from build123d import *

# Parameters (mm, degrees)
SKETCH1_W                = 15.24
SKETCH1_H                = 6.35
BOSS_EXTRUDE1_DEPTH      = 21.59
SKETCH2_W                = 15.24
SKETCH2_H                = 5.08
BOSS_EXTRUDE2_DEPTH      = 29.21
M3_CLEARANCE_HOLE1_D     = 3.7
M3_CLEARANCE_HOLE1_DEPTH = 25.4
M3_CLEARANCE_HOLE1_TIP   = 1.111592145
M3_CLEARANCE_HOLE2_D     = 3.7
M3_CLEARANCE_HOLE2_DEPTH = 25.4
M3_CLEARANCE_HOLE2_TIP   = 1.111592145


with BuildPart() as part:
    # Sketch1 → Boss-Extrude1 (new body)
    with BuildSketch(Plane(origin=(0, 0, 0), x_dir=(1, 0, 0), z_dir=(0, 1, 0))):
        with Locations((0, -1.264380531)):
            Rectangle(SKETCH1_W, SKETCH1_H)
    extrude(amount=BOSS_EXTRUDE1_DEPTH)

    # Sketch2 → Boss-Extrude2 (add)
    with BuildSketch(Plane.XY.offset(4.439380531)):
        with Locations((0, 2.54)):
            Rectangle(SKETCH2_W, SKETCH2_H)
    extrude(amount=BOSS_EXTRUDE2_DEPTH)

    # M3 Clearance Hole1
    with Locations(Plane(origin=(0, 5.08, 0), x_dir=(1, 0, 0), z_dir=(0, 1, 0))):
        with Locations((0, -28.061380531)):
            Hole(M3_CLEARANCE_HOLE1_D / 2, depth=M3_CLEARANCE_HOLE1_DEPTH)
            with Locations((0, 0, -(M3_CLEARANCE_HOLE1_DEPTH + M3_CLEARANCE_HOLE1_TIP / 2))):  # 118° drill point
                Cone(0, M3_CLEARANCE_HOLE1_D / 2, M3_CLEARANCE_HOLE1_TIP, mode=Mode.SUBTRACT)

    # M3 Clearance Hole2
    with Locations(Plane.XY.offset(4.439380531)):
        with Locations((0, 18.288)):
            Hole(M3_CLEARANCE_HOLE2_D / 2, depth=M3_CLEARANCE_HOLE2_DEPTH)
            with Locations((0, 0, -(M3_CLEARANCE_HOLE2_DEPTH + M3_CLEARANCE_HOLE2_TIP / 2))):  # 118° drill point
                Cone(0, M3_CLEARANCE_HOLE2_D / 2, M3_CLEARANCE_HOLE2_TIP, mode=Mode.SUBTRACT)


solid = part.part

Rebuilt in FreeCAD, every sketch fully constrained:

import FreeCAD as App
import Part
import Sketcher

V = App.Vector
Q = App.Units.Quantity

doc = App.newDocument("Part")
body = doc.addObject("PartDesign::Body", "Body")

# Sketch on XZ plane
sketch1 = doc.addObject("Sketcher::SketchObject", "Sketch")
body.addObject(sketch1)
sketch1.AttachmentSupport = (doc.XZ_Plane, [""])
sketch1.MapMode = "FlatFace"
sketch1.addGeometry(Part.LineSegment(V(-8, -2, 0), V(-8, 4, 0)), False)
sketch1.addGeometry(Part.LineSegment(V(-8, 4, 0), V(8, 4, 0)), False)
sketch1.addGeometry(Part.LineSegment(V(8, 4, 0), V(8, -2, 0)), False)
sketch1.addGeometry(Part.LineSegment(V(8, -2, 0), V(-8, -2, 0)), False)
sketch1.addConstraint(Sketcher.Constraint("Coincident", 0, 2, 1, 1))
sketch1.addConstraint(Sketcher.Constraint("Coincident", 1, 2, 2, 1))
sketch1.addConstraint(Sketcher.Constraint("Coincident", 2, 2, 3, 1))
sketch1.addConstraint(Sketcher.Constraint("Coincident", 3, 2, 0, 1))
sketch1.addConstraint(Sketcher.Constraint("Vertical", 0))
sketch1.addConstraint(Sketcher.Constraint("Horizontal", 1))
sketch1.addConstraint(Sketcher.Constraint("Vertical", 2))
sketch1.addConstraint(Sketcher.Constraint("Horizontal", 3))
sketch1.addConstraint(Sketcher.Constraint("DistanceX", 1, 1, 1, 2, Q("0.6 in")))
sketch1.addConstraint(Sketcher.Constraint("DistanceY", 0, 1, 0, 2, Q("0.25 in")))
sketch1.addConstraint(Sketcher.Constraint("DistanceX", 0, 2, -1, 1, Q("0.3 in")))
sketch1.addConstraint(Sketcher.Constraint("DistanceY", -1, 1, 0, 2, Q("4.439381 mm")))
pad1 = doc.addObject("PartDesign::Pad", "Pad")
body.addObject(pad1)
pad1.Profile = sketch1
pad1.Length = Q("0.85 in")
pad1.Reversed = True

# Sketch on XY plane
sketch2 = doc.addObject("Sketcher::SketchObject", "Sketch001")
body.addObject(sketch2)
sketch2.AttachmentSupport = (doc.XY_Plane, [""])
sketch2.MapMode = "FlatFace"
sketch2.AttachmentOffset = App.Placement(V(0, 0, 4.439381), App.Rotation())
sketch2.addGeometry(Part.LineSegment(V(-8, 5, 0), V(-8, 0, 0)), False)
sketch2.addGeometry(Part.LineSegment(V(-8, 0, 0), V(8, 0, 0)), False)
sketch2.addGeometry(Part.LineSegment(V(8, 0, 0), V(8, 5, 0)), False)
sketch2.addGeometry(Part.LineSegment(V(8, 5, 0), V(-8, 5, 0)), False)
sketch2.addConstraint(Sketcher.Constraint("Coincident", 0, 2, 1, 1))
sketch2.addConstraint(Sketcher.Constraint("Coincident", 1, 2, 2, 1))
sketch2.addConstraint(Sketcher.Constraint("Coincident", 2, 2, 3, 1))
sketch2.addConstraint(Sketcher.Constraint("Coincident", 3, 2, 0, 1))
sketch2.addConstraint(Sketcher.Constraint("Vertical", 0))
sketch2.addConstraint(Sketcher.Constraint("Horizontal", 1))
sketch2.addConstraint(Sketcher.Constraint("Vertical", 2))
sketch2.addConstraint(Sketcher.Constraint("Horizontal", 3))
sketch2.addConstraint(Sketcher.Constraint("Symmetric", 0, 2, 1, 2, -1, 1))
sketch2.addConstraint(Sketcher.Constraint("DistanceX", 1, 1, 1, 2, Q("0.6 in")))
sketch2.addConstraint(Sketcher.Constraint("DistanceY", 0, 2, 0, 1, Q("0.2 in")))
pad2 = doc.addObject("PartDesign::Pad", "Pad001")
body.addObject(pad2)
pad2.Profile = sketch2
pad2.Length = Q("1.15 in")

# Sketch on XZ plane
sketch3 = doc.addObject("Sketcher::SketchObject", "Sketch002")
body.addObject(sketch3)
sketch3.AttachmentSupport = (doc.XZ_Plane, [""])
sketch3.MapMode = "FlatFace"
sketch3.AttachmentOffset = App.Placement(V(0, 0, -0.2 * 25.4), App.Rotation())
sketch3.addGeometry(Part.Circle(V(0, 28.1, 0), V(0, 0, 1), 1.9), False)
sketch3.addConstraint(Sketcher.Constraint("PointOnObject", 0, 3, -2))
sketch3.addConstraint(Sketcher.Constraint("Diameter", 0, Q("3.7 mm")))
sketch3.addConstraint(Sketcher.Constraint("DistanceY", -1, 1, 0, 3, Q("28.061381 mm")))
doc.recompute()
hole = doc.addObject("PartDesign::Hole", "Hole")
body.addObject(hole)
hole.Profile = sketch3
hole.ThreadType = "None"
hole.Diameter = 3.7
hole.DepthType = "Dimension"
hole.Depth = Q("1 in")
hole.DrillPoint = "Angled"
hole.DrillPointAngle = 118
hole.Reversed = True

# Sketch on XY plane
sketch4 = doc.addObject("Sketcher::SketchObject", "Sketch003")
body.addObject(sketch4)
sketch4.AttachmentSupport = (doc.XY_Plane, [""])
sketch4.MapMode = "FlatFace"
sketch4.AttachmentOffset = App.Placement(V(0, 0, 4.439381), App.Rotation())
sketch4.addGeometry(Part.Circle(V(0, 18.3, 0), V(0, 0, 1), 1.9), False)
sketch4.addConstraint(Sketcher.Constraint("PointOnObject", 0, 3, -2))
sketch4.addConstraint(Sketcher.Constraint("Diameter", 0, Q("3.7 mm")))
sketch4.addConstraint(Sketcher.Constraint("DistanceY", -1, 1, 0, 3, Q("0.72 in")))
doc.recompute()
hole2 = doc.addObject("PartDesign::Hole", "Hole001")
body.addObject(hole2)
hole2.Profile = sketch4
hole2.ThreadType = "None"
hole2.Diameter = 3.7
hole2.DepthType = "Dimension"
hole2.Depth = Q("1 in")
hole2.DrillPoint = "Angled"
hole2.DrillPointAngle = 118

doc.recompute()
